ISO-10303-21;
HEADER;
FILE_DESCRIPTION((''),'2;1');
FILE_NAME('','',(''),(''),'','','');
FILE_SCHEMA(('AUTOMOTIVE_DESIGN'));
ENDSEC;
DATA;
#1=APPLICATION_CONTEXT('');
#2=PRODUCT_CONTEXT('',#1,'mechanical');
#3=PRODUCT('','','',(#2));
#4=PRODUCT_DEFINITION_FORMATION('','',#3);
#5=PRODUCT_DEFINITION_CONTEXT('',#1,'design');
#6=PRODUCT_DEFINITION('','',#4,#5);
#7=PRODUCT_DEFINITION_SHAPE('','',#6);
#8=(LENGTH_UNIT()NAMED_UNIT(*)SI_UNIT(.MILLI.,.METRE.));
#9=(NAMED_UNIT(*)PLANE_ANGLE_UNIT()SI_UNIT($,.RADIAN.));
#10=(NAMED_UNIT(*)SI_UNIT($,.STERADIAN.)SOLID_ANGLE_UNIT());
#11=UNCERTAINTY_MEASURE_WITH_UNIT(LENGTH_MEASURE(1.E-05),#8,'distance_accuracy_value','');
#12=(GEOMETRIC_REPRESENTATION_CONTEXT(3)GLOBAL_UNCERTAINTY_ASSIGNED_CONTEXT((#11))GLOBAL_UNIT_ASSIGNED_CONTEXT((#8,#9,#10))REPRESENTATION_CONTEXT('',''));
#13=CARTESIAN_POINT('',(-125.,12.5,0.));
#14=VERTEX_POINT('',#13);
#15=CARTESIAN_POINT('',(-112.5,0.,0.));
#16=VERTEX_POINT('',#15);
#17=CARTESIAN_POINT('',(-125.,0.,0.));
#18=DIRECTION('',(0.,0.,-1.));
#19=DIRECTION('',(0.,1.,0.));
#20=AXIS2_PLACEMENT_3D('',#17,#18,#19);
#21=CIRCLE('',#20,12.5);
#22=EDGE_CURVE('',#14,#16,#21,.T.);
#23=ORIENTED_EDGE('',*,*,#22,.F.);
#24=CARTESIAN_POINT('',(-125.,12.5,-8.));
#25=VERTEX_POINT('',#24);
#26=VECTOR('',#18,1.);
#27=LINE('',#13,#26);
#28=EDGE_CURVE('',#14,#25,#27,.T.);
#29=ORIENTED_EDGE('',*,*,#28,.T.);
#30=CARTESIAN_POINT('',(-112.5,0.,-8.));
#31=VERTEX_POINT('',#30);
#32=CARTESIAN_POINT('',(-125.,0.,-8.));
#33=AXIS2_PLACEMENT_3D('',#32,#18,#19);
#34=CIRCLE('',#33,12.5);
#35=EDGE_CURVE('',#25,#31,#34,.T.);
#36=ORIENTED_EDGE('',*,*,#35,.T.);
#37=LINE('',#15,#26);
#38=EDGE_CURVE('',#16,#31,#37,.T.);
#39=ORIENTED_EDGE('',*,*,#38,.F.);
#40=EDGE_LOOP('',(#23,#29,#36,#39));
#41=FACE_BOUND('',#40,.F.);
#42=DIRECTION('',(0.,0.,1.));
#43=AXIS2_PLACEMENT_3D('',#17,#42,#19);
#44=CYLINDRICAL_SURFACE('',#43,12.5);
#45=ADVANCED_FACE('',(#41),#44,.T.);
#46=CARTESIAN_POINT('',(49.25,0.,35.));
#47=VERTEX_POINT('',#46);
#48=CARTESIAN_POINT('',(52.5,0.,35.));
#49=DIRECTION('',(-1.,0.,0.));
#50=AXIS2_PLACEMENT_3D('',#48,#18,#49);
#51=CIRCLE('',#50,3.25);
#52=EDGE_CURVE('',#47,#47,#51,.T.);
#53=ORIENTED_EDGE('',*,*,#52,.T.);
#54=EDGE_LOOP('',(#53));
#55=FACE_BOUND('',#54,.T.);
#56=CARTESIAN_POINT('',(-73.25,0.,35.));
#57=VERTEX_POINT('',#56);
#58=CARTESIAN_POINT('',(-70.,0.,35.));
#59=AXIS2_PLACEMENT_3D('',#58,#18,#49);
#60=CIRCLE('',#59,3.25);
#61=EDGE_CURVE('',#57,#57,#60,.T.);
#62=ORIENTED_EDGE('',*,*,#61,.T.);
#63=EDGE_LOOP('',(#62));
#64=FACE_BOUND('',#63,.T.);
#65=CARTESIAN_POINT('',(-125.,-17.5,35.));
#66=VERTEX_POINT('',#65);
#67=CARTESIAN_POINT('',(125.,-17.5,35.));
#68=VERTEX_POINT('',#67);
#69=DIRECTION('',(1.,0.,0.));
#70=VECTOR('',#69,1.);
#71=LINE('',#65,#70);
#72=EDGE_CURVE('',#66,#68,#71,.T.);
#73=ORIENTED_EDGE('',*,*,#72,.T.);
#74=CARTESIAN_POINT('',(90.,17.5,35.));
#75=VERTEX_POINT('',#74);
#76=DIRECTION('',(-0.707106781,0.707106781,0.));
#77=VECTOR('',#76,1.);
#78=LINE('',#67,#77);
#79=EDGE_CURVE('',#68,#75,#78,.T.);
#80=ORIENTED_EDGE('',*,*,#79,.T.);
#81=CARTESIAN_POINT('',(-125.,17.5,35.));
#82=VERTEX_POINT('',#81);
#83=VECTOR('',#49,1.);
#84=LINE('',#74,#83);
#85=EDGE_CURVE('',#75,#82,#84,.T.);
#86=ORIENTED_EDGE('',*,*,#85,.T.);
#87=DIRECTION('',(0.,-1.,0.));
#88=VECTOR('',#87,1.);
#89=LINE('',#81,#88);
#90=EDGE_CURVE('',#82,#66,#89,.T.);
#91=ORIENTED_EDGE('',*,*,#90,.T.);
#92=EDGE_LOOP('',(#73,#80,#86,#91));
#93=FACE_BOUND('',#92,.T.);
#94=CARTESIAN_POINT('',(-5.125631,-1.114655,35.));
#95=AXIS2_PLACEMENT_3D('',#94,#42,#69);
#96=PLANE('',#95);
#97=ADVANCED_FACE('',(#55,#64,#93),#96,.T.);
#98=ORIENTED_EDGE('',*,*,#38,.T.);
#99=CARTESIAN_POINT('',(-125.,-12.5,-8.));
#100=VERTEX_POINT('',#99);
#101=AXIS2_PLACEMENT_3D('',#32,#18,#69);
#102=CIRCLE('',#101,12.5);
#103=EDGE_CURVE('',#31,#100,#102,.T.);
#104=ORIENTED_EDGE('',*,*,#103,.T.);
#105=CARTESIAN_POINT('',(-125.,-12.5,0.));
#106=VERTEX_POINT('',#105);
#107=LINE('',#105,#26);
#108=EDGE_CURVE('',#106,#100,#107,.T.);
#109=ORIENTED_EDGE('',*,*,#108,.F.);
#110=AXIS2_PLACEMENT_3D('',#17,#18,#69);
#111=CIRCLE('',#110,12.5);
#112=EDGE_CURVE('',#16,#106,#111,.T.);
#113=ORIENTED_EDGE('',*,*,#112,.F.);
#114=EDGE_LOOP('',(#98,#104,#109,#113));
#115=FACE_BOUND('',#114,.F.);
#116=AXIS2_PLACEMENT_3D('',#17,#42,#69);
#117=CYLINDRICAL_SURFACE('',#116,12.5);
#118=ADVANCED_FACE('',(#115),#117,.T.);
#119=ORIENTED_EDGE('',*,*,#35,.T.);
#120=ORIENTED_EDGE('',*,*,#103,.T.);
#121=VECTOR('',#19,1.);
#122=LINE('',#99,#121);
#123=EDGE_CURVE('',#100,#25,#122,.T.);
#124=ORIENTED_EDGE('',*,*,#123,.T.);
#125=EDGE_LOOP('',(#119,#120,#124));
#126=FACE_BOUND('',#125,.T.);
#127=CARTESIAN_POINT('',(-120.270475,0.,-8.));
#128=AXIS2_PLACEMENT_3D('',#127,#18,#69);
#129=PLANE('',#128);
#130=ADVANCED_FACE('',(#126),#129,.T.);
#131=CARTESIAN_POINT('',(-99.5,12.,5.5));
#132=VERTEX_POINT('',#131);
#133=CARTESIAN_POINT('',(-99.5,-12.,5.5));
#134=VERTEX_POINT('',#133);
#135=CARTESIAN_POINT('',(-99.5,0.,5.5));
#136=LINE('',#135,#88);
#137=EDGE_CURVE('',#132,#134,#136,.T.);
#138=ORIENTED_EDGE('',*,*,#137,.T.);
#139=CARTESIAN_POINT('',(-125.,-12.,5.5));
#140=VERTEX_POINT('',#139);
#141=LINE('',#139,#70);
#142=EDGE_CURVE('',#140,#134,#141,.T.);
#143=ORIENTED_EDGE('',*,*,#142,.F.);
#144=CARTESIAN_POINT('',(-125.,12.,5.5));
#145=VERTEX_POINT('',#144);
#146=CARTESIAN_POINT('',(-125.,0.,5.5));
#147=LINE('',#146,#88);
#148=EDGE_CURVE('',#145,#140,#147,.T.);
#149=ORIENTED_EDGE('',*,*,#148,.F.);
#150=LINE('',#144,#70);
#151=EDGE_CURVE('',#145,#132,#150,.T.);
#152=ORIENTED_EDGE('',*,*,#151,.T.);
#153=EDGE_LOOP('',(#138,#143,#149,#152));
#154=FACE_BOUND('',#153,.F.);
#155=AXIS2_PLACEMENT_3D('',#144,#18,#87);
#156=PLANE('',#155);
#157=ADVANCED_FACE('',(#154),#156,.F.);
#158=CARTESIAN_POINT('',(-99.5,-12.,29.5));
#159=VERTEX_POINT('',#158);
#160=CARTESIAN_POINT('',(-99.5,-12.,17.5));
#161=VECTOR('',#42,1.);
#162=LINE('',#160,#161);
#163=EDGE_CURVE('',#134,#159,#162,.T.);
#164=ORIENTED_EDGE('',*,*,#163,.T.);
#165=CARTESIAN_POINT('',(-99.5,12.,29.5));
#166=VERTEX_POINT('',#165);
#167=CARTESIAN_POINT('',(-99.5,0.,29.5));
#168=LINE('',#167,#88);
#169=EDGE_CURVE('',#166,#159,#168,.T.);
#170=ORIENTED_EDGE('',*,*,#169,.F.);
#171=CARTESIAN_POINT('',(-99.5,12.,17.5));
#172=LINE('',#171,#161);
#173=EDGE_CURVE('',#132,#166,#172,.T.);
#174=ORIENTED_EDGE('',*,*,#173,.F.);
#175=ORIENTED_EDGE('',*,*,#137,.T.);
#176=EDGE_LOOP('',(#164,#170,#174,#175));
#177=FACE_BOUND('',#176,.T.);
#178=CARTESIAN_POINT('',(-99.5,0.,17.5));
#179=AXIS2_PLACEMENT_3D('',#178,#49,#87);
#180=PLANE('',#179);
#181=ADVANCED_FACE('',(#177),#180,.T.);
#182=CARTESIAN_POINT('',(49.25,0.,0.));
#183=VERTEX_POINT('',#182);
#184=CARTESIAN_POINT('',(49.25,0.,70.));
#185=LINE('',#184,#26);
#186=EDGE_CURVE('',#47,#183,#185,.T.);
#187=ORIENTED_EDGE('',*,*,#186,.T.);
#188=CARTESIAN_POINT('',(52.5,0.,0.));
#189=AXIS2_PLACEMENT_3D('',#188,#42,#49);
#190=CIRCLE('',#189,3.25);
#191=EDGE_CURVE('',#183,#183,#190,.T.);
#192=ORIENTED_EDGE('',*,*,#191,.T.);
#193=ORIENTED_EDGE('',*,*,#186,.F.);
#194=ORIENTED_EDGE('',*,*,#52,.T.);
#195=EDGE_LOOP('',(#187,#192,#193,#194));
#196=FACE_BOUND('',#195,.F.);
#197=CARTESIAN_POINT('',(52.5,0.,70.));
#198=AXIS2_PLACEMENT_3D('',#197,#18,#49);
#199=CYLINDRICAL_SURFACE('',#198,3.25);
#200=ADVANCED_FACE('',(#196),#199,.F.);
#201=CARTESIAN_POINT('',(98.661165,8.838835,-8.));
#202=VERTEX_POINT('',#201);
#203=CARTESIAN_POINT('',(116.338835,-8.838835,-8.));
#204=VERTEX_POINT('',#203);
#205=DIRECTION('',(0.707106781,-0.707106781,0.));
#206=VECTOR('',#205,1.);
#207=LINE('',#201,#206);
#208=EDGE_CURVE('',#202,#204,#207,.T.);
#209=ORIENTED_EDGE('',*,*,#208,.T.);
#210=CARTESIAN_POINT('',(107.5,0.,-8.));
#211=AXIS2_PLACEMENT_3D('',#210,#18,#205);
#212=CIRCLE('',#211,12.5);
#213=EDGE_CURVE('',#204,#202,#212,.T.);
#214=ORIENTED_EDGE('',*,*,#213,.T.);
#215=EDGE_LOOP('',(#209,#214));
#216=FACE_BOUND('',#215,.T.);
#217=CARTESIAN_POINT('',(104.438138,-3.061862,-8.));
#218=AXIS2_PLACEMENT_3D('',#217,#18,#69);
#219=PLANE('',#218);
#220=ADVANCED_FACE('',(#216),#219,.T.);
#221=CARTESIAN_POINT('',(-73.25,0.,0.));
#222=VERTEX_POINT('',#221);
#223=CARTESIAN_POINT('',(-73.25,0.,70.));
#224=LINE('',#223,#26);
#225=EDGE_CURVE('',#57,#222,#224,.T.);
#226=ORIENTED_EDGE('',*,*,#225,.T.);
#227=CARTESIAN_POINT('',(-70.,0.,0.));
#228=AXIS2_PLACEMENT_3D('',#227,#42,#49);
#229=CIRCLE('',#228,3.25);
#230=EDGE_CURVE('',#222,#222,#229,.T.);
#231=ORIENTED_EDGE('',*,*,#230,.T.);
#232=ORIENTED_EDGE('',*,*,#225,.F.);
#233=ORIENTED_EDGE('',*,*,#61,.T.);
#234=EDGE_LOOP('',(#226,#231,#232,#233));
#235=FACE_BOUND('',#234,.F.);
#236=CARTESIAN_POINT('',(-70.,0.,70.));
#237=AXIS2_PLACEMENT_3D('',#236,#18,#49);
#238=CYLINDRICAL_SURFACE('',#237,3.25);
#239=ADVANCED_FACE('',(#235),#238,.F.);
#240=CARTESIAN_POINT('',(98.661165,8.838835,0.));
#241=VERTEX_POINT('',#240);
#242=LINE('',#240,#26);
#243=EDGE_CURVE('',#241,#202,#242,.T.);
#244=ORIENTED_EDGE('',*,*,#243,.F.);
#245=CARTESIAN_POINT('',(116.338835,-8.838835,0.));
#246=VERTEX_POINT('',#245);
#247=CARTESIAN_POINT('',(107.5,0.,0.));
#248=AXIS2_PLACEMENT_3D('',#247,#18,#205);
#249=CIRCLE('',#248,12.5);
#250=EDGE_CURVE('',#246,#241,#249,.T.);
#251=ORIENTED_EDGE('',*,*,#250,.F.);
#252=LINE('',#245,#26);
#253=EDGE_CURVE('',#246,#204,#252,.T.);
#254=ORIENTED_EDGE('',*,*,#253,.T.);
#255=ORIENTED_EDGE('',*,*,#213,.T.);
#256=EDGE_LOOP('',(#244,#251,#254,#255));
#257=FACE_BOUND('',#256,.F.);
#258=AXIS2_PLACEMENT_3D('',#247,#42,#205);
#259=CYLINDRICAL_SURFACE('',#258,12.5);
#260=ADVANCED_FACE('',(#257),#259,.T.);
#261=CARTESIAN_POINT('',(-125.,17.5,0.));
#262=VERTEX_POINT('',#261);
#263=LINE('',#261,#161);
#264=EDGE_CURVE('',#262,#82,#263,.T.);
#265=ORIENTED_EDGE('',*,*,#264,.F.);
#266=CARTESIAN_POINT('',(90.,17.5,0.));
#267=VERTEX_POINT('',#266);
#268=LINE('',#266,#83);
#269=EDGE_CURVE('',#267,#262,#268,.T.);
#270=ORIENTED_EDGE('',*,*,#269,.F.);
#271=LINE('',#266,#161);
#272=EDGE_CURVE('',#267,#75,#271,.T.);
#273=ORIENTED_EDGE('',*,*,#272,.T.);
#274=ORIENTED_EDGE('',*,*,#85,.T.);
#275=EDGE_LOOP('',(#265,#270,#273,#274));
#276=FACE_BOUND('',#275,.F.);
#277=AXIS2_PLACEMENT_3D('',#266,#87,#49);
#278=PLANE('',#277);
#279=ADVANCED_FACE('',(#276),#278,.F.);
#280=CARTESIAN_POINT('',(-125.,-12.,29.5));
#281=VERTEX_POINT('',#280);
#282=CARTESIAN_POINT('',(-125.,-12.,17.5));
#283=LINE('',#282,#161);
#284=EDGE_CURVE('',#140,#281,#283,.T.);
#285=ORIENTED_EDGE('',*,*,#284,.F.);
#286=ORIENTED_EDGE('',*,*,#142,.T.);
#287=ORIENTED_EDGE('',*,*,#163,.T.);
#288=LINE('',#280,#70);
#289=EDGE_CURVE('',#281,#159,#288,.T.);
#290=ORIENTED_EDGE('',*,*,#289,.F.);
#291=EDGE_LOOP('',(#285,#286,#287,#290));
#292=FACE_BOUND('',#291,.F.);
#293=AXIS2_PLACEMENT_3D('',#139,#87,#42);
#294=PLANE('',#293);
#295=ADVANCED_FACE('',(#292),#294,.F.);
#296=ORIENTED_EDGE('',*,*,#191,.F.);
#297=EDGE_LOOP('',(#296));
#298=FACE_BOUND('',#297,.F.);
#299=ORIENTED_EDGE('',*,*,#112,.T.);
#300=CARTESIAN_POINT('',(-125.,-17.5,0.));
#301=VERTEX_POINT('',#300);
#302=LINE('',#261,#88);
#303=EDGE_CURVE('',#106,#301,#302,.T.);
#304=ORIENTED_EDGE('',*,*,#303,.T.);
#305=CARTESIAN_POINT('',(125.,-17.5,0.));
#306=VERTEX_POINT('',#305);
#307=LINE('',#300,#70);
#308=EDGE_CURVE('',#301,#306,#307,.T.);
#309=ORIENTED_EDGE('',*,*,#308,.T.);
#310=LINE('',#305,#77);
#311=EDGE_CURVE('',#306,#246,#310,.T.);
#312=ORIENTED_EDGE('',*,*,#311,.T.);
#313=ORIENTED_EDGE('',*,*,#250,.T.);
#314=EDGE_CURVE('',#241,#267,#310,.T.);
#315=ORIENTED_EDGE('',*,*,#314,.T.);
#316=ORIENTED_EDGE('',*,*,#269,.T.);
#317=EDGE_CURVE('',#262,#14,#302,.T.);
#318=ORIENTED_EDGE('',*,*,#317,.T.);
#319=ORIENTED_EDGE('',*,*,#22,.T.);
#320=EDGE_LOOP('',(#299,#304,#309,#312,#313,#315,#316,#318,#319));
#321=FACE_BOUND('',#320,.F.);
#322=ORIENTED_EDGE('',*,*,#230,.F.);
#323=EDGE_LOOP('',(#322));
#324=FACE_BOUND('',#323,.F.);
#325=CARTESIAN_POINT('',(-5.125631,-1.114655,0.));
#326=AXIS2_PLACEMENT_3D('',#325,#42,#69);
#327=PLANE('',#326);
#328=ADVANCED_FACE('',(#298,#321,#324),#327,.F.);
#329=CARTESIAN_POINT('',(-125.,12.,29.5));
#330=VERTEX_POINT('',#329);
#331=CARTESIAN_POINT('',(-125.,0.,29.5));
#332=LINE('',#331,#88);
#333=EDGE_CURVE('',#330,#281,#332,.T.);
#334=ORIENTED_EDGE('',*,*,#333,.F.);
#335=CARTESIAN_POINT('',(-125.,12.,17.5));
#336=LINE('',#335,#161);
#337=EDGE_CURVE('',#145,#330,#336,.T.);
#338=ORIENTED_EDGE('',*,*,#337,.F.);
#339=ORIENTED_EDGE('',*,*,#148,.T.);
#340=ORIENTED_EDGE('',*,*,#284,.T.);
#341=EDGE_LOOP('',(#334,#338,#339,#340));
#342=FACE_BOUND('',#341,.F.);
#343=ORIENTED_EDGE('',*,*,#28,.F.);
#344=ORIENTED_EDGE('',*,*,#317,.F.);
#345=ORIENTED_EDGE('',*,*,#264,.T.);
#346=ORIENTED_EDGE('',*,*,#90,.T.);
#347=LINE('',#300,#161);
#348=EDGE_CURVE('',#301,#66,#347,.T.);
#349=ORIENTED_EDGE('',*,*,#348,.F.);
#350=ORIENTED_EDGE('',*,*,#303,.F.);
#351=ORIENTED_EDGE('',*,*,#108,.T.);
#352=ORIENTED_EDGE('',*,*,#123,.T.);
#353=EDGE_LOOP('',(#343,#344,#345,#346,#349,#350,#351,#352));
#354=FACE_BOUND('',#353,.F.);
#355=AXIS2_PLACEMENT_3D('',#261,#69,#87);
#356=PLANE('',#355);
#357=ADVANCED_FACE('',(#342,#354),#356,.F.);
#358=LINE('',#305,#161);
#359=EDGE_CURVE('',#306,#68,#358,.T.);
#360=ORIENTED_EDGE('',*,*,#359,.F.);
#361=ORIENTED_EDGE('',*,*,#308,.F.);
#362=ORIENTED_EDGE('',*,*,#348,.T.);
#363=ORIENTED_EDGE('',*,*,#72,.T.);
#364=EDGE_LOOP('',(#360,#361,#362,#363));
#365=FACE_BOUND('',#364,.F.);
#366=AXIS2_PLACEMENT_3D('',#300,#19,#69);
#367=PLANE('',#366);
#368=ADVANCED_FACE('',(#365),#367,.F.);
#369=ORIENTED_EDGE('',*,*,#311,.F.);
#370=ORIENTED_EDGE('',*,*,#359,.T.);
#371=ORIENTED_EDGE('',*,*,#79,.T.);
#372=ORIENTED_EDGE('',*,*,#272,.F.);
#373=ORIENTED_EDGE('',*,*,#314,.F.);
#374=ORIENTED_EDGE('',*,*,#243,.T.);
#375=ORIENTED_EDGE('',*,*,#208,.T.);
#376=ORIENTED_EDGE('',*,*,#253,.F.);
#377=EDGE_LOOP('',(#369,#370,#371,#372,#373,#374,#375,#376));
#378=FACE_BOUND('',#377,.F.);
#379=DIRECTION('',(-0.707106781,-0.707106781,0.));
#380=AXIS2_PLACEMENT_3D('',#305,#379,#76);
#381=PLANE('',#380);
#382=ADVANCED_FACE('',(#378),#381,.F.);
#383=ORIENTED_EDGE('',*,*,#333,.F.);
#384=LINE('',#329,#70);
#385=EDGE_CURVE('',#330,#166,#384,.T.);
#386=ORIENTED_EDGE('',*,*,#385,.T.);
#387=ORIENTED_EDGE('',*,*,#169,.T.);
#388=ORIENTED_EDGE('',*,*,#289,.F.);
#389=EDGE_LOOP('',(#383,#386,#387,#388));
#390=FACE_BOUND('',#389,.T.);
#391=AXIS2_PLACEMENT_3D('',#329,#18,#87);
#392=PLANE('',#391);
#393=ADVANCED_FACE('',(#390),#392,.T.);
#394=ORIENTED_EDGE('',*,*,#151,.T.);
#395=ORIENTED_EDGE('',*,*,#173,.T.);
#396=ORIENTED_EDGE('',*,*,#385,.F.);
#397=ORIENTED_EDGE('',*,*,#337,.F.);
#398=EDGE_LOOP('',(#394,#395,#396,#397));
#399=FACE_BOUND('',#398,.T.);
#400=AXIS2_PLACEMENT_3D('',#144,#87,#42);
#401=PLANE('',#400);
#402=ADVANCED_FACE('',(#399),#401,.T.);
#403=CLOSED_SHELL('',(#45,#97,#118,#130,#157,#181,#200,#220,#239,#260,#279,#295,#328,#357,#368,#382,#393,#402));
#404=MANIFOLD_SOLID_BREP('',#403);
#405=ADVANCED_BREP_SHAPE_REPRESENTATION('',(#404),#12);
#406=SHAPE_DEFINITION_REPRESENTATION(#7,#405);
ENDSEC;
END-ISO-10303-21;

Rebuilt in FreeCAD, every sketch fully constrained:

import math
import FreeCAD as App
import Part
import Sketcher

V = App.Vector
Q = App.Units.Quantity


def add_polygon(sketch, points):
    """Adds a closed chain of lines whose ends are joined by coincident constraints."""
    first, n = sketch.GeometryCount, len(points)
    for a, b in zip(points, points[1:] + points[:1]):
        sketch.addGeometry(Part.LineSegment(App.Vector(*a, 0), App.Vector(*b, 0)), False)
    for i in range(n):
        sketch.addConstraint(Sketcher.Constraint("Coincident", first + i, 2, first + (i + 1) % n, 1))

doc = App.newDocument("Part")
body = doc.addObject("PartDesign::Body", "Body")

# Sketch on XY plane
sketch1 = doc.addObject("Sketcher::SketchObject", "Sketch")
body.addObject(sketch1)
sketch1.AttachmentSupport = (doc.XY_Plane, [""])
sketch1.MapMode = "FlatFace"
add_polygon(sketch1, [(-125, -17.5), (125, -17.5), (90, 17.5), (-125, 17.5)])  # lines 0-3
sketch1.addConstraint(Sketcher.Constraint("Horizontal", 0))
sketch1.addConstraint(Sketcher.Constraint("Horizontal", 2))
sketch1.addConstraint(Sketcher.Constraint("Vertical", 3))
sketch1.addConstraint(Sketcher.Constraint("Symmetric", 0, 2, 2, 2, -1, 1))
sketch1.addConstraint(Sketcher.Constraint("DistanceX", 0, 1, 0, 2, 250.0))
sketch1.addConstraint(Sketcher.Constraint("DistanceX", 2, 2, 2, 1, 215.0))
sketch1.addConstraint(Sketcher.Constraint("DistanceY", 3, 2, 3, 1, 35.0))
pad1 = doc.addObject("PartDesign::Pad", "Pad")
body.addObject(pad1)
pad1.Profile = sketch1
pad1.Length = 35

# Sketch on YZ plane
sketch2 = doc.addObject("Sketcher::SketchObject", "Sketch001")
body.addObject(sketch2)
sketch2.AttachmentSupport = (doc.YZ_Plane, [""])
sketch2.MapMode = "FlatFace"
sketch2.AttachmentOffset = App.Placement(V(0, 0, -125), App.Rotation())
add_polygon(sketch2, [(12, 29.5), (12, 5.5), (-12, 5.5), (-12, 29.5)])  # lines 0-3
sketch2.addConstraint(Sketcher.Constraint("Vertical", 0))
sketch2.addConstraint(Sketcher.Constraint("Horizontal", 1))
sketch2.addConstraint(Sketcher.Constraint("Vertical", 2))
sketch2.addConstraint(Sketcher.Constraint("Horizontal", 3))
sketch2.addConstraint(Sketcher.Constraint("Equal", 3, 0))
sketch2.addConstraint(Sketcher.Constraint("DistanceX", 1, 2, 1, 1, 24.0))
sketch2.addConstraint(Sketcher.Constraint("DistanceX", -1, 1, 0, 2, 12.0))
sketch2.addConstraint(Sketcher.Constraint("DistanceY", -1, 1, 0, 2, 5.5))
pocket1 = doc.addObject("PartDesign::Pocket", "Pocket")
body.addObject(pocket1)
pocket1.Profile = sketch2
pocket1.Length = 25.5
pocket1.Reversed = True

# Sketch on XY plane
sketch3 = doc.addObject("Sketcher::SketchObject", "Sketch002")
body.addObject(sketch3)
sketch3.AttachmentSupport = (doc.XY_Plane, [""])
sketch3.MapMode = "FlatFace"
sketch3.AttachmentOffset = App.Placement(V(0, 0, 35), App.Rotation())
sketch3.addGeometry(Part.Circle(V(52.5, 0, 0), V(0, 0, 1), 3.25), False)
sketch3.addGeometry(Part.Circle(V(-70, 0, 0), V(0, 0, 1), 3.25), False)
sketch3.addConstraint(Sketcher.Constraint("Equal", 0, 1))
sketch3.addConstraint(Sketcher.Constraint("PointOnObject", 0, 3, -1))
sketch3.addConstraint(Sketcher.Constraint("PointOnObject", 1, 3, -1))
sketch3.addConstraint(Sketcher.Constraint("Diameter", 0, 6.5))
sketch3.addConstraint(Sketcher.Constraint("DistanceX", 1, 3, -1, 1, 70.0))
sketch3.addConstraint(Sketcher.Constraint("DistanceX", -1, 1, 0, 3, 52.5))
doc.recompute()
hole = doc.addObject("PartDesign::Hole", "Hole")
body.addObject(hole)
hole.Profile = sketch3
hole.ThreadType = "None"
hole.Diameter = 6.5
hole.DepthType = "Dimension"
hole.Depth = 35
hole.DrillPoint = "Angled"
hole.DrillPointAngle = 118

# Sketch on XY plane
sketch4 = doc.addObject("Sketcher::SketchObject", "Sketch003")
body.addObject(sketch4)
sketch4.AttachmentSupport = (doc.XY_Plane, [""])
sketch4.MapMode = "FlatFace"
sketch4.addGeometry(Part.LineSegment(V(98.661165, 8.838835, 0), V(116.338835, -8.838835, 0)), False)
sketch4.addGeometry(Part.ArcOfCircle(Part.Circle(V(107.5, 0, 0), V(0, 0, 1), 12.5), math.radians(135), math.radians(315)), False)
sketch4.addConstraint(Sketcher.Constraint("Coincident", 0, 1, 1, 1))
sketch4.addConstraint(Sketcher.Constraint("Coincident", 1, 2, 0, 2))
sketch4.addConstraint(Sketcher.Constraint("PointOnObject", 1, 3, -1))
sketch4.addConstraint(Sketcher.Constraint("Radius", 1, 12.5))
sketch4.addConstraint(Sketcher.Constraint("Angle", 0, Q("-45 deg")))
sketch4.addConstraint(Sketcher.Constraint("DistanceX", -1, 1, 1, 3, 107.5))
sketch4.addConstraint(Sketcher.Constraint("DistanceX", -1, 1, 0, 1, 98.661165))
pad2 = doc.addObject("PartDesign::Pad", "Pad001")
body.addObject(pad2)
pad2.Profile = sketch4
pad2.Length = 8
pad2.Reversed = True

# Sketch on XY plane
sketch5 = doc.addObject("Sketcher::SketchObject", "Sketch004")
body.addObject(sketch5)
sketch5.AttachmentSupport = (doc.XY_Plane, [""])
sketch5.MapMode = "FlatFace"
sketch5.addGeometry(Part.ArcOfCircle(Part.Circle(V(-125, 0, 0), V(0, 0, 1), 12.5), math.radians(0), math.radians(90)), False)
sketch5.addGeometry(Part.ArcOfCircle(Part.Circle(V(-125, 0, 0), V(0, 0, 1), 12.5), math.radians(-90), math.radians(0)), False)
sketch5.addGeometry(Part.LineSegment(V(-125, -12.5, 0), V(-125, 12.5, 0)), False)
sketch5.addConstraint(Sketcher.Constraint("Tangent", 0, 1, 1, 2))
sketch5.addConstraint(Sketcher.Constraint("Coincident", 1, 1, 2, 1))
sketch5.addConstraint(Sketcher.Constraint("Coincident", 2, 2, 0, 2))
sketch5.addConstraint(Sketcher.Constraint("Vertical", 2))
sketch5.addConstraint(Sketcher.Constraint("Equal", 0, 1))
sketch5.addConstraint(Sketcher.Constraint("PointOnObject", 0, 3, -1))
sketch5.addConstraint(Sketcher.Constraint("PointOnObject", 0, 1, -1))
sketch5.addConstraint(Sketcher.Constraint("Vertical", 0, 3, 1, 1))
sketch5.addConstraint(Sketcher.Constraint("Radius", 0, 12.5))
sketch5.addConstraint(Sketcher.Constraint("DistanceX", 0, 3, -1, 1, 125.0))
pad3 = doc.addObject("PartDesign::Pad", "Pad002")
body.addObject(pad3)
pad3.Profile = sketch5
pad3.Length = 8
pad3.Reversed = True

doc.recompute()
